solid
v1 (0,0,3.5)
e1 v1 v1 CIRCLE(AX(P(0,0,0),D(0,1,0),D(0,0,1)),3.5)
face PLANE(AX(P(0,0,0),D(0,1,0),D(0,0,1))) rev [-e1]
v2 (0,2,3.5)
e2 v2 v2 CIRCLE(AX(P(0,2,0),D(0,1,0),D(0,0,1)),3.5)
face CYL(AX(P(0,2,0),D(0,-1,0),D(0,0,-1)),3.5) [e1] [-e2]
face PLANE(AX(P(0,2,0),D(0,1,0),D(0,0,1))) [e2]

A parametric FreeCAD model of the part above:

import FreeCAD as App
import Part
import Sketcher

doc = App.newDocument("Part")
body = doc.addObject("PartDesign::Body", "Body")

sketch1 = body.newObject("Sketcher::SketchObject", "Sketch")
sketch1.AttachmentSupport = (doc.getObject("XZ_Plane"), [""])
sketch1.MapMode = "FlatFace"
sketch1.addGeometry(Part.Circle(App.Vector(0, 0, 0), App.Vector(0, 0, 1), 3.5), False)
sketch1.addConstraint(Sketcher.Constraint("Coincident", 0, 3, -1, 1))
sketch1.addConstraint(Sketcher.Constraint("Diameter", 0, 7.0))
pad1 = body.newObject("PartDesign::Pad", "Pad")
pad1.Profile = sketch1
pad1.Length = 2
pad1.Reversed = True

doc.recompute()
